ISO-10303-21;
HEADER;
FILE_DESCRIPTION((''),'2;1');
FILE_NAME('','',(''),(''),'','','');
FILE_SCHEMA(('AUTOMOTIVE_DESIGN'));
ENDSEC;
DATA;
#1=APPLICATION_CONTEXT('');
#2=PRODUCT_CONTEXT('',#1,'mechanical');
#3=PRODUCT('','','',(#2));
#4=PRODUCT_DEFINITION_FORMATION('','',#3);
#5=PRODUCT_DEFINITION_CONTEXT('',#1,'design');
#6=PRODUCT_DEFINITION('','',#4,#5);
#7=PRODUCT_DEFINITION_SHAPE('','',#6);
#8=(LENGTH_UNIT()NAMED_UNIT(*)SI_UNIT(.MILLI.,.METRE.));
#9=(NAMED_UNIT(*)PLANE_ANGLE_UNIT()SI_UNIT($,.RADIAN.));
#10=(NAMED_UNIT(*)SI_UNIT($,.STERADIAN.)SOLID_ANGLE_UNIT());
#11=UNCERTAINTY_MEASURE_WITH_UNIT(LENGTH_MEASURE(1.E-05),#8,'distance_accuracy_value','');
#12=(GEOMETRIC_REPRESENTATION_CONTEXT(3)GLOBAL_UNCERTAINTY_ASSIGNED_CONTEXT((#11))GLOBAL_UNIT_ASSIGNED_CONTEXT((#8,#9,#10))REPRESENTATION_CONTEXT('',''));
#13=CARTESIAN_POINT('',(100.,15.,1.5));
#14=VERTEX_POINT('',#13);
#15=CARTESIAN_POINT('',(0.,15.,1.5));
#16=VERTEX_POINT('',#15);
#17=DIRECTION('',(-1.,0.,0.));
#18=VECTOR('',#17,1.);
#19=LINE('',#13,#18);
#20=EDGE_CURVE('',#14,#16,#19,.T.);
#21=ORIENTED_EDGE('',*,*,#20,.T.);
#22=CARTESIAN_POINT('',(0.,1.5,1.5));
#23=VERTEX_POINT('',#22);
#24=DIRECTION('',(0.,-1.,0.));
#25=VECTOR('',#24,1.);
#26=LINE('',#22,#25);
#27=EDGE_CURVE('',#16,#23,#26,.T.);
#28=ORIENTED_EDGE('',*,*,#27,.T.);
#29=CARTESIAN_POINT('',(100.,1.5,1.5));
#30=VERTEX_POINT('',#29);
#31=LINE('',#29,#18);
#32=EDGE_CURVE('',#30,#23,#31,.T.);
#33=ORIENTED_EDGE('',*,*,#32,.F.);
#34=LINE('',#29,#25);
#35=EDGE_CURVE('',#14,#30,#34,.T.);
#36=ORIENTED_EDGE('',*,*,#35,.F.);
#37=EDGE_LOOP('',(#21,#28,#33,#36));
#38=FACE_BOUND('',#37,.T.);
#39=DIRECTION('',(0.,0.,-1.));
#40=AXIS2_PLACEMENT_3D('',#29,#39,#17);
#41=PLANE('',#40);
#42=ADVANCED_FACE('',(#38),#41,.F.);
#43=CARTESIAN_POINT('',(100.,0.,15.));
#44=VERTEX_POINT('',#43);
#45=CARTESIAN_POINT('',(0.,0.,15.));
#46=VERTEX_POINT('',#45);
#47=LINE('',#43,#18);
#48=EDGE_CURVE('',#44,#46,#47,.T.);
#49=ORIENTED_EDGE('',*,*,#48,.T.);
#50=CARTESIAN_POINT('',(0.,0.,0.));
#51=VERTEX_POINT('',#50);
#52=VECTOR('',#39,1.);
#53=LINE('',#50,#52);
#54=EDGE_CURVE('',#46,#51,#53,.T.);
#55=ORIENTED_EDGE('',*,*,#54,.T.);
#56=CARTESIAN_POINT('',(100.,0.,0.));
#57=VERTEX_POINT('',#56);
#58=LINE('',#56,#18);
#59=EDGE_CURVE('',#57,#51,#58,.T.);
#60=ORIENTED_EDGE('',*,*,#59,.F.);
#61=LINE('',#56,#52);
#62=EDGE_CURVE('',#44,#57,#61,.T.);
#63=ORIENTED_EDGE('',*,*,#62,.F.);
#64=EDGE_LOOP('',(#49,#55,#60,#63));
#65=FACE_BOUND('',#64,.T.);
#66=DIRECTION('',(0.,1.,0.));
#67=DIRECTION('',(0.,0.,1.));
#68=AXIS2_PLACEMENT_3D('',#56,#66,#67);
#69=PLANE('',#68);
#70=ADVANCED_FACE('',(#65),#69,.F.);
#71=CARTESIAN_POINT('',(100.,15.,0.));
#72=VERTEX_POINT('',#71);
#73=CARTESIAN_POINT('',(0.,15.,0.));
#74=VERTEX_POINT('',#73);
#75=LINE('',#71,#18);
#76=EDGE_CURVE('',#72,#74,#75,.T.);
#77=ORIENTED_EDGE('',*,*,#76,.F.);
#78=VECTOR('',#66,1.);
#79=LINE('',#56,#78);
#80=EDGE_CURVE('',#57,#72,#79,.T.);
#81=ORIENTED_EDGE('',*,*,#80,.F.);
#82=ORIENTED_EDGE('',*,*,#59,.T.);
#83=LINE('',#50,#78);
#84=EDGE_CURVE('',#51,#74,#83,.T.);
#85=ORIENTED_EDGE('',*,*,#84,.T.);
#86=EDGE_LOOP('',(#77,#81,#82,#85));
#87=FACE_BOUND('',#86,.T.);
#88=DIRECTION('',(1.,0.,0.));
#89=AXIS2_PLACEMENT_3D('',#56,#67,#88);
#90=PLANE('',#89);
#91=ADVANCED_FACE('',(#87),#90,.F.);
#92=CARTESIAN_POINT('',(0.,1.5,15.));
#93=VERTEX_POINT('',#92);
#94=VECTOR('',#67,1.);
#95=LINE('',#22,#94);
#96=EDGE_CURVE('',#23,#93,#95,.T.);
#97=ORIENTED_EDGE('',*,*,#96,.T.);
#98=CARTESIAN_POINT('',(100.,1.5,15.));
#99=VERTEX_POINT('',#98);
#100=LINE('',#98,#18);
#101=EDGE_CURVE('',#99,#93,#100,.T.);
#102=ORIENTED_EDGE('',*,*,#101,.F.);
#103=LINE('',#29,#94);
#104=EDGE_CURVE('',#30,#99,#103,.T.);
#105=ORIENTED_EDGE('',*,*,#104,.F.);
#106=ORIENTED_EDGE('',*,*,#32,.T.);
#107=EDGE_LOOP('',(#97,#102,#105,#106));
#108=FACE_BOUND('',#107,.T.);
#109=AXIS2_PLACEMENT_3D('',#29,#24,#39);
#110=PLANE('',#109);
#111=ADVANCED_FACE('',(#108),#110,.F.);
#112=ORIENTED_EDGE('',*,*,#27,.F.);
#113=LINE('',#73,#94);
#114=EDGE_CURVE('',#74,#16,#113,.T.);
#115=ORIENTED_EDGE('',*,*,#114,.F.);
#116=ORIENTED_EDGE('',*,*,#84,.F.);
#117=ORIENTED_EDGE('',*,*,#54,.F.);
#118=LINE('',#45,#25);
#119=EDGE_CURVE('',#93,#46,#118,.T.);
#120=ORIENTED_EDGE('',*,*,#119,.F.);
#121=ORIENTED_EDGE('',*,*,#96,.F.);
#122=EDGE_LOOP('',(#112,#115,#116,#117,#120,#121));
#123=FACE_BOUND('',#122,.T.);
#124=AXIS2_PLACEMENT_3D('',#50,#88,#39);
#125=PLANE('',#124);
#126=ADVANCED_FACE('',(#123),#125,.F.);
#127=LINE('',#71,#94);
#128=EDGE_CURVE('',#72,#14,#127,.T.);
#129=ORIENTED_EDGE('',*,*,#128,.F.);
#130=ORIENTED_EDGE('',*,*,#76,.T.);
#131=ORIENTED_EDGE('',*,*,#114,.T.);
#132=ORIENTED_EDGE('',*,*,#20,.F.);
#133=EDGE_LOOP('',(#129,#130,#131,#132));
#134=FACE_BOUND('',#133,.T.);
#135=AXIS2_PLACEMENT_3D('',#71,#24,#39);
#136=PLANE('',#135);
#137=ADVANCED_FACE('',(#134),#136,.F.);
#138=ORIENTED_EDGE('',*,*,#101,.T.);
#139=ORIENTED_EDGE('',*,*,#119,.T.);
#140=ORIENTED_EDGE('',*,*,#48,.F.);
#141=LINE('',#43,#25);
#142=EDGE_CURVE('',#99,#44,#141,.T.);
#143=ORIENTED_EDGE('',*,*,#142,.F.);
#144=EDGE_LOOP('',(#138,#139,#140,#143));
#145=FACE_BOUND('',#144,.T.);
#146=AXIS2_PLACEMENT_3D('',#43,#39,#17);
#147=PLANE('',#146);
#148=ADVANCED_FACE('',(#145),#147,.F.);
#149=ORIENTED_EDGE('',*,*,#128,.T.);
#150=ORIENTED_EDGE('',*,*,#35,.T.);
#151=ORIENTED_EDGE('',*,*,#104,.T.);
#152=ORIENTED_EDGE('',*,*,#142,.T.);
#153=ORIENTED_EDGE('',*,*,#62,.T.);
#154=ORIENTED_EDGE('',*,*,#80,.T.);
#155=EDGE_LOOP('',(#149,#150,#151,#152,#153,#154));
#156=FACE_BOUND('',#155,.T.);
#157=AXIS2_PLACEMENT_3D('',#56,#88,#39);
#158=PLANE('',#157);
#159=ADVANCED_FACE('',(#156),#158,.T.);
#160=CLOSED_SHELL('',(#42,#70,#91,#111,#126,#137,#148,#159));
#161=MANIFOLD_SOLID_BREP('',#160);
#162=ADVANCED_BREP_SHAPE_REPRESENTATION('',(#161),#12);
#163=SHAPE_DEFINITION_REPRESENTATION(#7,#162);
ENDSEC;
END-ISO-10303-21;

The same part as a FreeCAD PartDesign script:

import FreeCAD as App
import Part
import Sketcher
Q = App.Units.Quantity


def add_polygon(sketch, points):
    """Adds a closed chain of lines whose ends are joined by coincident constraints."""
    first, n = sketch.GeometryCount, len(points)
    for a, b in zip(points, points[1:] + points[:1]):
        sketch.addGeometry(Part.LineSegment(App.Vector(*a, 0), App.Vector(*b, 0)), False)
    for i in range(n):
        sketch.addConstraint(Sketcher.Constraint("Coincident", first + i, 2, first + (i + 1) % n, 1))

doc = App.newDocument("Part")
body = doc.addObject("PartDesign::Body", "Body")

sketch1 = doc.addObject("Sketcher::SketchObject", "Sketch")
body.addObject(sketch1)
sketch1.AttachmentSupport = (doc.YZ_Plane, [""])
sketch1.MapMode = "FlatFace"
add_polygon(sketch1, [(0, 15), (0, 0), (15, 0), (15, 1.5), (1.5, 1.5), (1.5, 15)])
sketch1.addConstraint(Sketcher.Constraint("Vertical", 0))
sketch1.addConstraint(Sketcher.Constraint("Horizontal", 1))
sketch1.addConstraint(Sketcher.Constraint("Vertical", 2))
sketch1.addConstraint(Sketcher.Constraint("Horizontal", 3))
sketch1.addConstraint(Sketcher.Constraint("Vertical", 4))
sketch1.addConstraint(Sketcher.Constraint("Horizontal", 5))
sketch1.addConstraint(Sketcher.Constraint("Coincident", 0, 2, -1, 1))
sketch1.addConstraint(Sketcher.Constraint("Equal", 1, 0))
sketch1.addConstraint(Sketcher.Constraint("Equal", 5, 2))
sketch1.addConstraint(Sketcher.Constraint("DistanceX", 1, 1, 1, 2, Q("15 mm")))
sketch1.addConstraint(Sketcher.Constraint("DistanceX", 3, 2, 3, 1, Q("13.5 mm")))
pad1 = doc.addObject("PartDesign::Pad", "Pad")
body.addObject(pad1)
pad1.Profile = sketch1
pad1.Length = 100

doc.recompute()
